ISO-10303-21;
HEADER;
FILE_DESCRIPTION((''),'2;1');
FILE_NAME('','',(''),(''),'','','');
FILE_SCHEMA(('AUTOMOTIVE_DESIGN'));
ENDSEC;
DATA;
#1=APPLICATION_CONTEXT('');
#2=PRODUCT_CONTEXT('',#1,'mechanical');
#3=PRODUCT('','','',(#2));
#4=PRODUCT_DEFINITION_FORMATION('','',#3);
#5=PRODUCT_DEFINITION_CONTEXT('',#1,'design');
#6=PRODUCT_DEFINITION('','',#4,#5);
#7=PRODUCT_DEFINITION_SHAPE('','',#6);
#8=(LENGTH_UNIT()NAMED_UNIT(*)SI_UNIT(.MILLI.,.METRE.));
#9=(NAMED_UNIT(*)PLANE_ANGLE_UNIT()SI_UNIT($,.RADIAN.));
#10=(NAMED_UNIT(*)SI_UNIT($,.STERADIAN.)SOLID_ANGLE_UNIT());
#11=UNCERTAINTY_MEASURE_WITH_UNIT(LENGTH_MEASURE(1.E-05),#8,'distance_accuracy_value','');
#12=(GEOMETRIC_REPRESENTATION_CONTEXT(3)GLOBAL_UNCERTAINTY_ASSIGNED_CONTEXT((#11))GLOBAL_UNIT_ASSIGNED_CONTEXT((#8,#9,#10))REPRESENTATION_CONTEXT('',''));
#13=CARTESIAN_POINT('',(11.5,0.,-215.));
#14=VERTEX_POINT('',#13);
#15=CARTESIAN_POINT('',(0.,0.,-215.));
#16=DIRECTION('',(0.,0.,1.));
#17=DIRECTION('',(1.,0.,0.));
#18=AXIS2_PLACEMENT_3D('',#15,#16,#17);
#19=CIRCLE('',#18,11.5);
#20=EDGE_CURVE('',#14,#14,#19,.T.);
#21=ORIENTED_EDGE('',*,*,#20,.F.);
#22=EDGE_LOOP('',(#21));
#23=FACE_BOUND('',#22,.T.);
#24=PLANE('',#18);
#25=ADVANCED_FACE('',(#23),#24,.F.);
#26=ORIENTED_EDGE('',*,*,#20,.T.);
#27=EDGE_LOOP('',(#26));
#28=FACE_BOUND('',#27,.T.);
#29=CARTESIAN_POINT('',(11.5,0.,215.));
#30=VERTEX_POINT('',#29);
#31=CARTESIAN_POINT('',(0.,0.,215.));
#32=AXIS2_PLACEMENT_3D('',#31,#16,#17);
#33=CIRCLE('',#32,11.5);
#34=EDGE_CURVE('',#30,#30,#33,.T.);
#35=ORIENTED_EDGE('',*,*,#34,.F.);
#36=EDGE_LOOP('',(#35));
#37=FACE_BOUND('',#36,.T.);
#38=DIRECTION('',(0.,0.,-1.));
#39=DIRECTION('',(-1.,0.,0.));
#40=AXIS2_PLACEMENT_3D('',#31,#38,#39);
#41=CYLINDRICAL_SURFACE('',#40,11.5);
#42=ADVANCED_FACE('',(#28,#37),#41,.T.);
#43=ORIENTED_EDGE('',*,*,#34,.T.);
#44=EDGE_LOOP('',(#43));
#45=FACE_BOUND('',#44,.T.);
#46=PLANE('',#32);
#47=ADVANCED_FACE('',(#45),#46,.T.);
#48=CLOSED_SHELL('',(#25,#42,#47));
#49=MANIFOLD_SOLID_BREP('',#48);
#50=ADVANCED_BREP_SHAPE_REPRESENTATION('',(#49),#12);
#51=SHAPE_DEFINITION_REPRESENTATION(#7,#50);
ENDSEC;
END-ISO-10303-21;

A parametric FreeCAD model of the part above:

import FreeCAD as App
import Part
import Sketcher
from FreeCAD import Vector

doc = App.newDocument("Part")
body = doc.addObject("PartDesign::Body", "Body")

sketch1 = doc.addObject("Sketcher::SketchObject", "Sketch")
body.addObject(sketch1)
sketch1.AttachmentSupport = (doc.XY_Plane, [""])
sketch1.MapMode = "FlatFace"
sketch1.addGeometry(Part.Circle(Vector(0, 0, 0), Vector(0, 0, 1), 12), False)
sketch1.addConstraint(Sketcher.Constraint("Coincident", 0, 3, -1, 1))
sketch1.addConstraint(Sketcher.Constraint("Diameter", 0, 23.0))
pad1 = doc.addObject("PartDesign::Pad", "Pad")
body.addObject(pad1)
pad1.Profile = sketch1
pad1.Length = 430
pad1.Midplane = True

doc.recompute()
